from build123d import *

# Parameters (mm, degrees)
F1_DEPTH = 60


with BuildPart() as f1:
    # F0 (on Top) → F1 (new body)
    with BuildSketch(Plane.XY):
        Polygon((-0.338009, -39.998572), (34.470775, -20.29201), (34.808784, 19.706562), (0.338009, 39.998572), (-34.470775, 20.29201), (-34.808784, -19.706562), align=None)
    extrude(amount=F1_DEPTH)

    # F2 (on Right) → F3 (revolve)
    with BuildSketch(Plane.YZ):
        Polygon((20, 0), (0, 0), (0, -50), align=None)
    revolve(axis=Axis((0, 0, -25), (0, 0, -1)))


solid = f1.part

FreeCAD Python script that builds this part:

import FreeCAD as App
import Part
import Sketcher

V = App.Vector
Q = App.Units.Quantity

doc = App.newDocument("Part")
body = doc.addObject("PartDesign::Body", "Body")

# Sketch on XY plane
sketch1 = body.newObject("Sketcher::SketchObject", "Sketch")
sketch1.AttachmentSupport = (doc.getObject("XY_Plane"), [""])
sketch1.MapMode = "FlatFace"
sketch1.addGeometry(Part.LineSegment(V(-0.338009, -39.998572, 0), V(34.470775, -20.29201, 0)), False)
sketch1.addGeometry(Part.LineSegment(V(34.470775, -20.29201, 0), V(34.808784, 19.706562, 0)), False)
sketch1.addGeometry(Part.LineSegment(V(34.808784, 19.706562, 0), V(0.338009, 39.998572, 0)), False)
sketch1.addGeometry(Part.LineSegment(V(0.338009, 39.998572, 0), V(-34.470775, 20.29201, 0)), False)
sketch1.addGeometry(Part.LineSegment(V(-34.470775, 20.29201, 0), V(-34.808784, -19.706562, 0)), False)
sketch1.addGeometry(Part.LineSegment(V(-34.808784, -19.706562, 0), V(-0.338009, -39.998572, 0)), False)
sketch1.addConstraint(Sketcher.Constraint("Coincident", 0, 2, 1, 1))
sketch1.addConstraint(Sketcher.Constraint("Coincident", 1, 2, 2, 1))
sketch1.addConstraint(Sketcher.Constraint("Coincident", 2, 2, 3, 1))
sketch1.addConstraint(Sketcher.Constraint("Coincident", 3, 2, 4, 1))
sketch1.addConstraint(Sketcher.Constraint("Coincident", 4, 2, 5, 1))
sketch1.addConstraint(Sketcher.Constraint("Coincident", 5, 2, 0, 1))
sketch1.addConstraint(Sketcher.Constraint("Symmetric", 0, 2, 3, 2, -1, 1))
sketch1.addConstraint(Sketcher.Constraint("Symmetric", 1, 2, 4, 2, -1, 1))
sketch1.addConstraint(Sketcher.Constraint("Symmetric", 2, 2, 5, 2, -1, 1))
sketch1.addConstraint(Sketcher.Constraint("Equal", 0, 1))
sketch1.addConstraint(Sketcher.Constraint("Equal", 1, 2))
sketch1.addConstraint(Sketcher.Constraint("Distance", 0, Q("40 mm")))
sketch1.addConstraint(Sketcher.Constraint("DistanceY", 0, 2, -1, 1, Q("20.29201 mm")))
sketch1.addConstraint(Sketcher.Constraint("DistanceX", -1, 1, 2, 2, Q("0.338009 mm")))
sketch1.addConstraint(Sketcher.Constraint("DistanceX", 0, 2, 1, 2, Q("0.338009 mm")))
pad1 = body.newObject("PartDesign::Pad", "Pad")
pad1.Profile = sketch1
pad1.Length = 60

# Sketch on YZ plane
sketch2 = body.newObject("Sketcher::SketchObject", "Sketch001")
sketch2.AttachmentSupport = (doc.getObject("YZ_Plane"), [""])
sketch2.MapMode = "FlatFace"
sketch2.addGeometry(Part.LineSegment(V(20, 0, 0), V(0, 0, 0)), False)
sketch2.addGeometry(Part.LineSegment(V(0, 0, 0), V(0, -50, 0)), False)
sketch2.addGeometry(Part.LineSegment(V(0, -50, 0), V(20, 0, 0)), False)
sketch2.addConstraint(Sketcher.Constraint("Coincident", 0, 2, 1, 1))
sketch2.addConstraint(Sketcher.Constraint("Coincident", 1, 2, 2, 1))
sketch2.addConstraint(Sketcher.Constraint("Coincident", 2, 2, 0, 1))
sketch2.addConstraint(Sketcher.Constraint("Horizontal", 0))
sketch2.addConstraint(Sketcher.Constraint("Vertical", 1))
sketch2.addConstraint(Sketcher.Constraint("Coincident", 0, 2, -1, 1))
sketch2.addConstraint(Sketcher.Constraint("DistanceX", 0, 2, 0, 1, Q("20 mm")))
sketch2.addConstraint(Sketcher.Constraint("DistanceY", 1, 2, 1, 1, Q("50 mm")))
revolution = body.newObject("PartDesign::Revolution", "Revolution")
revolution.Profile = sketch2
revolution.ReferenceAxis = (sketch2, ["V_Axis"])
revolution.Angle = 360

doc.recompute()
